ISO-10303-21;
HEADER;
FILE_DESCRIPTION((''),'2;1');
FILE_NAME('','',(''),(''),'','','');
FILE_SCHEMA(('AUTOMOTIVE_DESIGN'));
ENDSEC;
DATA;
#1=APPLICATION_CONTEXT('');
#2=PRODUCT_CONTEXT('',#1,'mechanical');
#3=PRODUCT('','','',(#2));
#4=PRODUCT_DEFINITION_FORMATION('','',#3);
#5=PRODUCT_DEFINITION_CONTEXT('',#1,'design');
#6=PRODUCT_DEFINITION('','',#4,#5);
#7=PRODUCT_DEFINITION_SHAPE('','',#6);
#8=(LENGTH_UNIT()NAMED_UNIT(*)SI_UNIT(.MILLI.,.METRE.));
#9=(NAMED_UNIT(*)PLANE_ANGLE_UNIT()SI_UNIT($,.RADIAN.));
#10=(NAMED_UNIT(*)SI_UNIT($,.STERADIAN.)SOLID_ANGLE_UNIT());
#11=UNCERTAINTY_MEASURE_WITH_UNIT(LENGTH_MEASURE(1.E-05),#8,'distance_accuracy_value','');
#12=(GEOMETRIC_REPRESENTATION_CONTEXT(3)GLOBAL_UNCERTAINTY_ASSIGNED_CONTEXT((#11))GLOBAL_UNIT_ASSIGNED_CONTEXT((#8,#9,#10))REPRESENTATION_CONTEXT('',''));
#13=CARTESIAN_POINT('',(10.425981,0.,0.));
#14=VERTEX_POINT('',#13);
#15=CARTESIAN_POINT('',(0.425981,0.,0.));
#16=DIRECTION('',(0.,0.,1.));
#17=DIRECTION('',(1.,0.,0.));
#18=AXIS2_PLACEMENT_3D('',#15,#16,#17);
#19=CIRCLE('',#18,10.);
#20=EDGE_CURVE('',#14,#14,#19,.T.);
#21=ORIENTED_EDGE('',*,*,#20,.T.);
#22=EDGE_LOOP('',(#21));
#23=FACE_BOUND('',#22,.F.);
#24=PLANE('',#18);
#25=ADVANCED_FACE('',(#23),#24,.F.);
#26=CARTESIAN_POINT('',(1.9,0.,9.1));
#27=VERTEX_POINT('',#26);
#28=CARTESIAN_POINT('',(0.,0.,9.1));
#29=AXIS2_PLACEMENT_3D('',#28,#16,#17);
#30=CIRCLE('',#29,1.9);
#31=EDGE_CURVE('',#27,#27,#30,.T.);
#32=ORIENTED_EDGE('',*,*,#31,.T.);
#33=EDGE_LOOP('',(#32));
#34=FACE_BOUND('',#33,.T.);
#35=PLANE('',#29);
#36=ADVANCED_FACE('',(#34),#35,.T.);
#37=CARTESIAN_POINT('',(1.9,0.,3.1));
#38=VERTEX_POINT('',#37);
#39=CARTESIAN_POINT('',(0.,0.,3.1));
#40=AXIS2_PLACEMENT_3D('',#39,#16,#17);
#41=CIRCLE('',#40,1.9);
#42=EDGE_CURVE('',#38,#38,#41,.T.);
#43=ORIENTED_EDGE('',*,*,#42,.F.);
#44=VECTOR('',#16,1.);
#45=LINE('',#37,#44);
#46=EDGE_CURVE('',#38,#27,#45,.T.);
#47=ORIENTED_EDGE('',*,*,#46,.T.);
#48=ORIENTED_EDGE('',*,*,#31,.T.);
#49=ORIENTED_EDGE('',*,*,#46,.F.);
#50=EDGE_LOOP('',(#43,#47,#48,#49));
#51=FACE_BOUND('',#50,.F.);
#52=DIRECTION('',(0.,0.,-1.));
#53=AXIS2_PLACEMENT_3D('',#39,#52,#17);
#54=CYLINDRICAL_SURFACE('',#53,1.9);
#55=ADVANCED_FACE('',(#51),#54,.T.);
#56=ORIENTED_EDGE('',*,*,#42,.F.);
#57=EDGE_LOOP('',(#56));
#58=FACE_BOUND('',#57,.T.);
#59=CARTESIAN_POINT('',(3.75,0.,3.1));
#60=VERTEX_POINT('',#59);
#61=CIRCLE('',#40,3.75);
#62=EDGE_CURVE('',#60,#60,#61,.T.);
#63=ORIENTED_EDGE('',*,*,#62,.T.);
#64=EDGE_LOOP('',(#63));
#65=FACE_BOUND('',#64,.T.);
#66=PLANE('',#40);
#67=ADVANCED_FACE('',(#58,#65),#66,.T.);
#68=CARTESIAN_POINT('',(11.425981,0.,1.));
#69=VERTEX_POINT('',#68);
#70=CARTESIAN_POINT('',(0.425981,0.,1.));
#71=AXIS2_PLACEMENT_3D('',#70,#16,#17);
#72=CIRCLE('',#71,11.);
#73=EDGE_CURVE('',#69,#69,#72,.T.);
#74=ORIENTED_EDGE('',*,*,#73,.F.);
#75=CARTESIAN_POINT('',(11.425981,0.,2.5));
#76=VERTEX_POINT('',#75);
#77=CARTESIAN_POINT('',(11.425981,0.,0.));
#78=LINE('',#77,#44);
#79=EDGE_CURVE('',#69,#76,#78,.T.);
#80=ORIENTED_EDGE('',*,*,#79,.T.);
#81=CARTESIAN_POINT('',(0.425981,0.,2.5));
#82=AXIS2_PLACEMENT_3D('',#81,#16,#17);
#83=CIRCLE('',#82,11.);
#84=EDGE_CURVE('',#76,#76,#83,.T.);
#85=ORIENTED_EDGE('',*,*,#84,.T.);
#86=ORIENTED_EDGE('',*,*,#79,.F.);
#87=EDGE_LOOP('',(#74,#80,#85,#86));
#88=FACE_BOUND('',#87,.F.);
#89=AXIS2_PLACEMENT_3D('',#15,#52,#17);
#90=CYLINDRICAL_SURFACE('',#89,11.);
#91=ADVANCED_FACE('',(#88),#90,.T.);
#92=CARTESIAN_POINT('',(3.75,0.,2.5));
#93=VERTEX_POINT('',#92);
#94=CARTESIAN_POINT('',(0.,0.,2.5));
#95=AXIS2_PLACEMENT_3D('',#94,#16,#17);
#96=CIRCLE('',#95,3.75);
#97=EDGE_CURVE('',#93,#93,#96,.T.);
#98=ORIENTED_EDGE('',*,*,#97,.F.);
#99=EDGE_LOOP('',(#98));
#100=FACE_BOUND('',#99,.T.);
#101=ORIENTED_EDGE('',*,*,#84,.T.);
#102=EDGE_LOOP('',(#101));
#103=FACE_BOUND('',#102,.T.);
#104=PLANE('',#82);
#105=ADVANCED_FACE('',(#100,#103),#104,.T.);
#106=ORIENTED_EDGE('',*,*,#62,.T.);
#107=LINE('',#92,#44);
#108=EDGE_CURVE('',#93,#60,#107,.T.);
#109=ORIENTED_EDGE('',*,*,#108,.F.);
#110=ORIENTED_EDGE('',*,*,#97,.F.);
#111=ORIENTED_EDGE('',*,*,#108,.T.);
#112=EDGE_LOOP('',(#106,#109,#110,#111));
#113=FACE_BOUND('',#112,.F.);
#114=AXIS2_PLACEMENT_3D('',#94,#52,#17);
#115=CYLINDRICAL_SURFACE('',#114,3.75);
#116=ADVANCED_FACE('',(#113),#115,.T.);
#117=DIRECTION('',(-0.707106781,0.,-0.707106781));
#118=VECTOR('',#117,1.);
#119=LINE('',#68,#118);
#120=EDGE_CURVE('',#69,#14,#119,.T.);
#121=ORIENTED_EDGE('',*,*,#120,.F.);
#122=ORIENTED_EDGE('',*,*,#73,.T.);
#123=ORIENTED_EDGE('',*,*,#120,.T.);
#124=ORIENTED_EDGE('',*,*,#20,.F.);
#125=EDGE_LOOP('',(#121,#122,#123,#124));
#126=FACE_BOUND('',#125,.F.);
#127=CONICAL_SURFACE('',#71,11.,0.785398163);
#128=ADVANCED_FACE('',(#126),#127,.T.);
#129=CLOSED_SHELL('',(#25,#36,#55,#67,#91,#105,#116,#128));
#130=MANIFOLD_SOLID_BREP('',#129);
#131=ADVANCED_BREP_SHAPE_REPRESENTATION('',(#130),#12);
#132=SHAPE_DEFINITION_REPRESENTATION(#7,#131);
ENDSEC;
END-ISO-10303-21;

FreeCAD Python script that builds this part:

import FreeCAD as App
import Part
import Sketcher
from FreeCAD import Vector
Q = App.Units.Quantity


def edges_at(feature, points):
    """Names of the edges that pass closest to the given points."""
    edges = feature.Shape.Edges
    near = lambda p: min(range(len(edges)), key=lambda i: edges[i].distToShape(Part.Vertex(*p))[0])
    return sorted({f"Edge{near(p) + 1}" for p in points})

doc = App.newDocument("Part")
params = doc.addObject("Spreadsheet::Sheet", "Params")
for row, (alias, value) in enumerate([
    ("sketch1_diameter", "22 mm"),
    ("pad1_length", "2.5 mm"),
    ("chamfer_size", "1 mm"),
    ("chamfer_size2", "1 mm"),
    ("sketch2_diameter", "7.5 mm"),
    ("pad2_length", "0.6 mm"),
    ("sketch3_diameter", "3.8 mm"),
    ("pad3_length", "6 mm"),
], start=1):
    params.set(f"A{row}", alias)
    params.set(f"B{row}", "=" + value)
    params.setAlias(f"B{row}", alias)

body = doc.addObject("PartDesign::Body", "Body")

# Sketch on XY plane
sketch1 = body.newObject("Sketcher::SketchObject", "Sketch")
sketch1.AttachmentSupport = (doc.getObject("XY_Plane"), [""])
sketch1.MapMode = "FlatFace"
sketch1.addGeometry(Part.Circle(Vector(0, 0, 0), Vector(0, 0, 1), 11), False)
sketch1.addConstraint(Sketcher.Constraint("PointOnObject", 0, 3, -1))
sketch1.addConstraint(Sketcher.Constraint("Diameter", 0, Q("22 mm")))
sketch1.addConstraint(Sketcher.Constraint("DistanceX", -1, 1, 0, 3, Q("0.425981 mm")))
sketch1.setExpression("Constraints[1]", "Params.sketch1_diameter")
pad1 = body.newObject("PartDesign::Pad", "Pad")
pad1.Profile = sketch1
pad1.setExpression("Length", "Params.pad1_length")
doc.recompute()

chamfer = body.newObject("PartDesign::Chamfer", "Chamfer")
chamfer.Base = (pad1, edges_at(pad1, [(-10.574, 0, 0)]))
chamfer.ChamferType = "Two distances"
chamfer.setExpression("Size", "Params.chamfer_size")
chamfer.setExpression("Size2", "Params.chamfer_size2")

# Sketch on XY plane
sketch2 = body.newObject("Sketcher::SketchObject", "Sketch001")
sketch2.AttachmentSupport = (doc.getObject("XY_Plane"), [""])
sketch2.MapMode = "FlatFace"
sketch2.AttachmentOffset = App.Placement(Vector(0, 0, 2.5), App.Rotation())
sketch2.addGeometry(Part.Circle(Vector(0, 0, 0), Vector(0, 0, 1), 3.8), False)
sketch2.addConstraint(Sketcher.Constraint("Coincident", 0, 3, -1, 1))
sketch2.addConstraint(Sketcher.Constraint("Diameter", 0, Q("7.5 mm")))
sketch2.setExpression("Constraints[1]", "Params.sketch2_diameter")
pad2 = body.newObject("PartDesign::Pad", "Pad001")
pad2.Profile = sketch2
pad2.setExpression("Length", "Params.pad2_length")

# Sketch on XY plane
sketch3 = body.newObject("Sketcher::SketchObject", "Sketch002")
sketch3.AttachmentSupport = (doc.getObject("XY_Plane"), [""])
sketch3.MapMode = "FlatFace"
sketch3.AttachmentOffset = App.Placement(Vector(0, 0, 3.1), App.Rotation())
sketch3.addGeometry(Part.Circle(Vector(0, 0, 0), Vector(0, 0, 1), 1.9), False)
sketch3.addConstraint(Sketcher.Constraint("Coincident", 0, 3, -1, 1))
sketch3.addConstraint(Sketcher.Constraint("Diameter", 0, Q("3.8 mm")))
sketch3.setExpression("Constraints[1]", "Params.sketch3_diameter")
pad3 = body.newObject("PartDesign::Pad", "Pad002")
pad3.Profile = sketch3
pad3.setExpression("Length", "Params.pad3_length")

doc.recompute()
